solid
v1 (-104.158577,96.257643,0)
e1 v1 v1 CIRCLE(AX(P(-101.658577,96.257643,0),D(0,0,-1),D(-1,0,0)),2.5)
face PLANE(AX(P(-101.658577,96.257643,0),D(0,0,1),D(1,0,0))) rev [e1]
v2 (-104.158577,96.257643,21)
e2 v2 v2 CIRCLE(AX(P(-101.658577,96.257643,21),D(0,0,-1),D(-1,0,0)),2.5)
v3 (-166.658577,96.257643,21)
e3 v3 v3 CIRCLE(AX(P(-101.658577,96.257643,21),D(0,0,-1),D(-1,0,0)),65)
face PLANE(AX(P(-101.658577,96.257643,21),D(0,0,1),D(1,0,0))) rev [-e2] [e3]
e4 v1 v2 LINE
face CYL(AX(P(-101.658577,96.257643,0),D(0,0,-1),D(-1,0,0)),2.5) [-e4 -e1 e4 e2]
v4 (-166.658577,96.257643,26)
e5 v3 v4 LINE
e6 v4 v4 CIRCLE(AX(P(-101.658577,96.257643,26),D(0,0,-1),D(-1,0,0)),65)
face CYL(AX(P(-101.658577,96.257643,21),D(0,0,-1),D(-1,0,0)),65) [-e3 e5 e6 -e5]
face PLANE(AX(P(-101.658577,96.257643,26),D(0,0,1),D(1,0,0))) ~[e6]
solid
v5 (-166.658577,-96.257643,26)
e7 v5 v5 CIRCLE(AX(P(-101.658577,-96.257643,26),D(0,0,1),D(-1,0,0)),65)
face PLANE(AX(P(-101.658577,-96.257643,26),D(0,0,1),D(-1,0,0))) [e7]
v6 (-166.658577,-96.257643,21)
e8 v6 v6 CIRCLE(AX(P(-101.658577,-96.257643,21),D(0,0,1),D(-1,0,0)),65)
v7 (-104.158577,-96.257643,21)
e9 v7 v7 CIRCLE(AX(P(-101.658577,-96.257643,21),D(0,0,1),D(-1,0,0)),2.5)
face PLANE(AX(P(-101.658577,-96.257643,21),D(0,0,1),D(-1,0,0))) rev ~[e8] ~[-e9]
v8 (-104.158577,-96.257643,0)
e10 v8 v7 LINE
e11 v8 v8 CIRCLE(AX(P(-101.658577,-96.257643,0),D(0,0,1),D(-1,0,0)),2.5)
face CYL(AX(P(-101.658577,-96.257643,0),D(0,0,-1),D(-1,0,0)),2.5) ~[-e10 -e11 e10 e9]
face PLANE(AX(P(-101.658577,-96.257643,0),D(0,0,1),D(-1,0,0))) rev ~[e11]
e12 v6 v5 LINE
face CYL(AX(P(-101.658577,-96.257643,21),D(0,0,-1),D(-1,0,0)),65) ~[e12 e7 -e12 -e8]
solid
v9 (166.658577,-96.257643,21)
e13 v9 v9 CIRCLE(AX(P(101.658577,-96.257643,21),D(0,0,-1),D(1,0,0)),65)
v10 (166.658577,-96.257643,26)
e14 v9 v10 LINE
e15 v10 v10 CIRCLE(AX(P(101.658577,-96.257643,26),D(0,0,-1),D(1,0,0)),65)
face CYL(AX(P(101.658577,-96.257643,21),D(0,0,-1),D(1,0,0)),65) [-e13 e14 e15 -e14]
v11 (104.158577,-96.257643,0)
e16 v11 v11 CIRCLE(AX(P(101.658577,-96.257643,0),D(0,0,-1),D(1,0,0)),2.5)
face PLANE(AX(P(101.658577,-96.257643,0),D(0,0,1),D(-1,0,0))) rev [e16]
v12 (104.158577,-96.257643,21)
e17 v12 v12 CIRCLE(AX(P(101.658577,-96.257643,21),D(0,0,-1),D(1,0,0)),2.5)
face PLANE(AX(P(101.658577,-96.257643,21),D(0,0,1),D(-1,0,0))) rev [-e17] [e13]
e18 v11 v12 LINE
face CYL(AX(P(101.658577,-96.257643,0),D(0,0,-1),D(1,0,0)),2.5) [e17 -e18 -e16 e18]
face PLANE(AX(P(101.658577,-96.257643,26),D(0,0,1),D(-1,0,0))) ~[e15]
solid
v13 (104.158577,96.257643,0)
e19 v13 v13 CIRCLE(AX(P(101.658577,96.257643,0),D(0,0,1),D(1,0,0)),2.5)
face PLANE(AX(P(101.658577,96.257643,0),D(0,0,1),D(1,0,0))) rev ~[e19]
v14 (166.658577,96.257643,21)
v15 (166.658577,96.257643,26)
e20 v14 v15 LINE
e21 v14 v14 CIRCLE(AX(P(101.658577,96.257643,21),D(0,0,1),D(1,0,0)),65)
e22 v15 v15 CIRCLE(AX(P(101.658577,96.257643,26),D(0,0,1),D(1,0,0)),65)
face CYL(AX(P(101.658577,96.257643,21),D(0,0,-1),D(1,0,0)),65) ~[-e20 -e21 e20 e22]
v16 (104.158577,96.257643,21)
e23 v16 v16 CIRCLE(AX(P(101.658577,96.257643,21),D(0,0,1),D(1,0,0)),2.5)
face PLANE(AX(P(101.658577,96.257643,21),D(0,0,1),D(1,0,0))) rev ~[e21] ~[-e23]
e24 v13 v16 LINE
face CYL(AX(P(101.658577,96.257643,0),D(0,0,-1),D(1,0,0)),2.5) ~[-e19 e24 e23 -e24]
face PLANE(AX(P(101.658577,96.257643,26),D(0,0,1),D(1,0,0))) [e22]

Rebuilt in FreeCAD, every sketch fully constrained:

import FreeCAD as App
import Part
import Sketcher

V = App.Vector

doc = App.newDocument("Part")
body = doc.addObject("PartDesign::Body", "Body")

# Sketch on XY plane
sketch1 = body.newObject("Sketcher::SketchObject", "Sketch")
sketch1.AttachmentSupport = (doc.getObject("XY_Plane"), [""])
sketch1.MapMode = "FlatFace"
sketch1.addGeometry(Part.Circle(V(101.7, 96.3, 0), V(0, 0, 1), 2.5), False)
sketch1.addConstraint([
    Sketcher.Constraint("Diameter", 0, 5.0),
    Sketcher.Constraint("DistanceX", -1, 1, 0, 3, 101.658577),
    Sketcher.Constraint("DistanceY", -1, 1, 0, 3, 96.257643),
])
pad1 = body.newObject("PartDesign::Pad", "Pad")
pad1.Profile = sketch1
pad1.Length = 21

# Sketch on XY plane
sketch2 = body.newObject("Sketcher::SketchObject", "Sketch001")
sketch2.AttachmentSupport = (doc.getObject("XY_Plane"), [""])
sketch2.MapMode = "FlatFace"
sketch2.AttachmentOffset = App.Placement(V(0, 0, 21), App.Rotation())
sketch2.addGeometry(Part.Circle(V(102, 96, 0), V(0, 0, 1), 65), False)
sketch2.addConstraint([
    Sketcher.Constraint("Diameter", 0, 130.0),
    Sketcher.Constraint("DistanceX", -1, 1, 0, 3, 101.658577),
    Sketcher.Constraint("DistanceY", -1, 1, 0, 3, 96.257643),
])
pad2 = body.newObject("PartDesign::Pad", "Pad001")
pad2.Profile = sketch2
pad2.Length = 5
body2 = doc.addObject("PartDesign::Body", "Body001")
doc.recompute()

mirroring = doc.addObject("Part::Mirroring", "Mirroring")
mirroring.Source = body
mirroring.Base = V(0, 0, 0)
mirroring.Normal = V(1, 0, 0)
body2.BaseFeature = mirroring
doc.recompute()
body3 = doc.addObject("PartDesign::Body", "Body002")
doc.recompute()

mirroring2 = doc.addObject("Part::Mirroring", "Mirroring001")
mirroring2.Source = body2
mirroring2.Base = V(0, 0, 0)
mirroring2.Normal = V(0, -1, 0)
body3.BaseFeature = mirroring2
doc.recompute()
body4 = doc.addObject("PartDesign::Body", "Body003")
doc.recompute()

mirroring3 = doc.addObject("Part::Mirroring", "Mirroring002")
mirroring3.Source = body
mirroring3.Base = V(0, 0, 0)
mirroring3.Normal = V(0, -1, 0)
body4.BaseFeature = mirroring3
doc.recompute()
mirroring.Visibility = False
mirroring2.Visibility = False
mirroring3.Visibility = False

doc.recompute()
